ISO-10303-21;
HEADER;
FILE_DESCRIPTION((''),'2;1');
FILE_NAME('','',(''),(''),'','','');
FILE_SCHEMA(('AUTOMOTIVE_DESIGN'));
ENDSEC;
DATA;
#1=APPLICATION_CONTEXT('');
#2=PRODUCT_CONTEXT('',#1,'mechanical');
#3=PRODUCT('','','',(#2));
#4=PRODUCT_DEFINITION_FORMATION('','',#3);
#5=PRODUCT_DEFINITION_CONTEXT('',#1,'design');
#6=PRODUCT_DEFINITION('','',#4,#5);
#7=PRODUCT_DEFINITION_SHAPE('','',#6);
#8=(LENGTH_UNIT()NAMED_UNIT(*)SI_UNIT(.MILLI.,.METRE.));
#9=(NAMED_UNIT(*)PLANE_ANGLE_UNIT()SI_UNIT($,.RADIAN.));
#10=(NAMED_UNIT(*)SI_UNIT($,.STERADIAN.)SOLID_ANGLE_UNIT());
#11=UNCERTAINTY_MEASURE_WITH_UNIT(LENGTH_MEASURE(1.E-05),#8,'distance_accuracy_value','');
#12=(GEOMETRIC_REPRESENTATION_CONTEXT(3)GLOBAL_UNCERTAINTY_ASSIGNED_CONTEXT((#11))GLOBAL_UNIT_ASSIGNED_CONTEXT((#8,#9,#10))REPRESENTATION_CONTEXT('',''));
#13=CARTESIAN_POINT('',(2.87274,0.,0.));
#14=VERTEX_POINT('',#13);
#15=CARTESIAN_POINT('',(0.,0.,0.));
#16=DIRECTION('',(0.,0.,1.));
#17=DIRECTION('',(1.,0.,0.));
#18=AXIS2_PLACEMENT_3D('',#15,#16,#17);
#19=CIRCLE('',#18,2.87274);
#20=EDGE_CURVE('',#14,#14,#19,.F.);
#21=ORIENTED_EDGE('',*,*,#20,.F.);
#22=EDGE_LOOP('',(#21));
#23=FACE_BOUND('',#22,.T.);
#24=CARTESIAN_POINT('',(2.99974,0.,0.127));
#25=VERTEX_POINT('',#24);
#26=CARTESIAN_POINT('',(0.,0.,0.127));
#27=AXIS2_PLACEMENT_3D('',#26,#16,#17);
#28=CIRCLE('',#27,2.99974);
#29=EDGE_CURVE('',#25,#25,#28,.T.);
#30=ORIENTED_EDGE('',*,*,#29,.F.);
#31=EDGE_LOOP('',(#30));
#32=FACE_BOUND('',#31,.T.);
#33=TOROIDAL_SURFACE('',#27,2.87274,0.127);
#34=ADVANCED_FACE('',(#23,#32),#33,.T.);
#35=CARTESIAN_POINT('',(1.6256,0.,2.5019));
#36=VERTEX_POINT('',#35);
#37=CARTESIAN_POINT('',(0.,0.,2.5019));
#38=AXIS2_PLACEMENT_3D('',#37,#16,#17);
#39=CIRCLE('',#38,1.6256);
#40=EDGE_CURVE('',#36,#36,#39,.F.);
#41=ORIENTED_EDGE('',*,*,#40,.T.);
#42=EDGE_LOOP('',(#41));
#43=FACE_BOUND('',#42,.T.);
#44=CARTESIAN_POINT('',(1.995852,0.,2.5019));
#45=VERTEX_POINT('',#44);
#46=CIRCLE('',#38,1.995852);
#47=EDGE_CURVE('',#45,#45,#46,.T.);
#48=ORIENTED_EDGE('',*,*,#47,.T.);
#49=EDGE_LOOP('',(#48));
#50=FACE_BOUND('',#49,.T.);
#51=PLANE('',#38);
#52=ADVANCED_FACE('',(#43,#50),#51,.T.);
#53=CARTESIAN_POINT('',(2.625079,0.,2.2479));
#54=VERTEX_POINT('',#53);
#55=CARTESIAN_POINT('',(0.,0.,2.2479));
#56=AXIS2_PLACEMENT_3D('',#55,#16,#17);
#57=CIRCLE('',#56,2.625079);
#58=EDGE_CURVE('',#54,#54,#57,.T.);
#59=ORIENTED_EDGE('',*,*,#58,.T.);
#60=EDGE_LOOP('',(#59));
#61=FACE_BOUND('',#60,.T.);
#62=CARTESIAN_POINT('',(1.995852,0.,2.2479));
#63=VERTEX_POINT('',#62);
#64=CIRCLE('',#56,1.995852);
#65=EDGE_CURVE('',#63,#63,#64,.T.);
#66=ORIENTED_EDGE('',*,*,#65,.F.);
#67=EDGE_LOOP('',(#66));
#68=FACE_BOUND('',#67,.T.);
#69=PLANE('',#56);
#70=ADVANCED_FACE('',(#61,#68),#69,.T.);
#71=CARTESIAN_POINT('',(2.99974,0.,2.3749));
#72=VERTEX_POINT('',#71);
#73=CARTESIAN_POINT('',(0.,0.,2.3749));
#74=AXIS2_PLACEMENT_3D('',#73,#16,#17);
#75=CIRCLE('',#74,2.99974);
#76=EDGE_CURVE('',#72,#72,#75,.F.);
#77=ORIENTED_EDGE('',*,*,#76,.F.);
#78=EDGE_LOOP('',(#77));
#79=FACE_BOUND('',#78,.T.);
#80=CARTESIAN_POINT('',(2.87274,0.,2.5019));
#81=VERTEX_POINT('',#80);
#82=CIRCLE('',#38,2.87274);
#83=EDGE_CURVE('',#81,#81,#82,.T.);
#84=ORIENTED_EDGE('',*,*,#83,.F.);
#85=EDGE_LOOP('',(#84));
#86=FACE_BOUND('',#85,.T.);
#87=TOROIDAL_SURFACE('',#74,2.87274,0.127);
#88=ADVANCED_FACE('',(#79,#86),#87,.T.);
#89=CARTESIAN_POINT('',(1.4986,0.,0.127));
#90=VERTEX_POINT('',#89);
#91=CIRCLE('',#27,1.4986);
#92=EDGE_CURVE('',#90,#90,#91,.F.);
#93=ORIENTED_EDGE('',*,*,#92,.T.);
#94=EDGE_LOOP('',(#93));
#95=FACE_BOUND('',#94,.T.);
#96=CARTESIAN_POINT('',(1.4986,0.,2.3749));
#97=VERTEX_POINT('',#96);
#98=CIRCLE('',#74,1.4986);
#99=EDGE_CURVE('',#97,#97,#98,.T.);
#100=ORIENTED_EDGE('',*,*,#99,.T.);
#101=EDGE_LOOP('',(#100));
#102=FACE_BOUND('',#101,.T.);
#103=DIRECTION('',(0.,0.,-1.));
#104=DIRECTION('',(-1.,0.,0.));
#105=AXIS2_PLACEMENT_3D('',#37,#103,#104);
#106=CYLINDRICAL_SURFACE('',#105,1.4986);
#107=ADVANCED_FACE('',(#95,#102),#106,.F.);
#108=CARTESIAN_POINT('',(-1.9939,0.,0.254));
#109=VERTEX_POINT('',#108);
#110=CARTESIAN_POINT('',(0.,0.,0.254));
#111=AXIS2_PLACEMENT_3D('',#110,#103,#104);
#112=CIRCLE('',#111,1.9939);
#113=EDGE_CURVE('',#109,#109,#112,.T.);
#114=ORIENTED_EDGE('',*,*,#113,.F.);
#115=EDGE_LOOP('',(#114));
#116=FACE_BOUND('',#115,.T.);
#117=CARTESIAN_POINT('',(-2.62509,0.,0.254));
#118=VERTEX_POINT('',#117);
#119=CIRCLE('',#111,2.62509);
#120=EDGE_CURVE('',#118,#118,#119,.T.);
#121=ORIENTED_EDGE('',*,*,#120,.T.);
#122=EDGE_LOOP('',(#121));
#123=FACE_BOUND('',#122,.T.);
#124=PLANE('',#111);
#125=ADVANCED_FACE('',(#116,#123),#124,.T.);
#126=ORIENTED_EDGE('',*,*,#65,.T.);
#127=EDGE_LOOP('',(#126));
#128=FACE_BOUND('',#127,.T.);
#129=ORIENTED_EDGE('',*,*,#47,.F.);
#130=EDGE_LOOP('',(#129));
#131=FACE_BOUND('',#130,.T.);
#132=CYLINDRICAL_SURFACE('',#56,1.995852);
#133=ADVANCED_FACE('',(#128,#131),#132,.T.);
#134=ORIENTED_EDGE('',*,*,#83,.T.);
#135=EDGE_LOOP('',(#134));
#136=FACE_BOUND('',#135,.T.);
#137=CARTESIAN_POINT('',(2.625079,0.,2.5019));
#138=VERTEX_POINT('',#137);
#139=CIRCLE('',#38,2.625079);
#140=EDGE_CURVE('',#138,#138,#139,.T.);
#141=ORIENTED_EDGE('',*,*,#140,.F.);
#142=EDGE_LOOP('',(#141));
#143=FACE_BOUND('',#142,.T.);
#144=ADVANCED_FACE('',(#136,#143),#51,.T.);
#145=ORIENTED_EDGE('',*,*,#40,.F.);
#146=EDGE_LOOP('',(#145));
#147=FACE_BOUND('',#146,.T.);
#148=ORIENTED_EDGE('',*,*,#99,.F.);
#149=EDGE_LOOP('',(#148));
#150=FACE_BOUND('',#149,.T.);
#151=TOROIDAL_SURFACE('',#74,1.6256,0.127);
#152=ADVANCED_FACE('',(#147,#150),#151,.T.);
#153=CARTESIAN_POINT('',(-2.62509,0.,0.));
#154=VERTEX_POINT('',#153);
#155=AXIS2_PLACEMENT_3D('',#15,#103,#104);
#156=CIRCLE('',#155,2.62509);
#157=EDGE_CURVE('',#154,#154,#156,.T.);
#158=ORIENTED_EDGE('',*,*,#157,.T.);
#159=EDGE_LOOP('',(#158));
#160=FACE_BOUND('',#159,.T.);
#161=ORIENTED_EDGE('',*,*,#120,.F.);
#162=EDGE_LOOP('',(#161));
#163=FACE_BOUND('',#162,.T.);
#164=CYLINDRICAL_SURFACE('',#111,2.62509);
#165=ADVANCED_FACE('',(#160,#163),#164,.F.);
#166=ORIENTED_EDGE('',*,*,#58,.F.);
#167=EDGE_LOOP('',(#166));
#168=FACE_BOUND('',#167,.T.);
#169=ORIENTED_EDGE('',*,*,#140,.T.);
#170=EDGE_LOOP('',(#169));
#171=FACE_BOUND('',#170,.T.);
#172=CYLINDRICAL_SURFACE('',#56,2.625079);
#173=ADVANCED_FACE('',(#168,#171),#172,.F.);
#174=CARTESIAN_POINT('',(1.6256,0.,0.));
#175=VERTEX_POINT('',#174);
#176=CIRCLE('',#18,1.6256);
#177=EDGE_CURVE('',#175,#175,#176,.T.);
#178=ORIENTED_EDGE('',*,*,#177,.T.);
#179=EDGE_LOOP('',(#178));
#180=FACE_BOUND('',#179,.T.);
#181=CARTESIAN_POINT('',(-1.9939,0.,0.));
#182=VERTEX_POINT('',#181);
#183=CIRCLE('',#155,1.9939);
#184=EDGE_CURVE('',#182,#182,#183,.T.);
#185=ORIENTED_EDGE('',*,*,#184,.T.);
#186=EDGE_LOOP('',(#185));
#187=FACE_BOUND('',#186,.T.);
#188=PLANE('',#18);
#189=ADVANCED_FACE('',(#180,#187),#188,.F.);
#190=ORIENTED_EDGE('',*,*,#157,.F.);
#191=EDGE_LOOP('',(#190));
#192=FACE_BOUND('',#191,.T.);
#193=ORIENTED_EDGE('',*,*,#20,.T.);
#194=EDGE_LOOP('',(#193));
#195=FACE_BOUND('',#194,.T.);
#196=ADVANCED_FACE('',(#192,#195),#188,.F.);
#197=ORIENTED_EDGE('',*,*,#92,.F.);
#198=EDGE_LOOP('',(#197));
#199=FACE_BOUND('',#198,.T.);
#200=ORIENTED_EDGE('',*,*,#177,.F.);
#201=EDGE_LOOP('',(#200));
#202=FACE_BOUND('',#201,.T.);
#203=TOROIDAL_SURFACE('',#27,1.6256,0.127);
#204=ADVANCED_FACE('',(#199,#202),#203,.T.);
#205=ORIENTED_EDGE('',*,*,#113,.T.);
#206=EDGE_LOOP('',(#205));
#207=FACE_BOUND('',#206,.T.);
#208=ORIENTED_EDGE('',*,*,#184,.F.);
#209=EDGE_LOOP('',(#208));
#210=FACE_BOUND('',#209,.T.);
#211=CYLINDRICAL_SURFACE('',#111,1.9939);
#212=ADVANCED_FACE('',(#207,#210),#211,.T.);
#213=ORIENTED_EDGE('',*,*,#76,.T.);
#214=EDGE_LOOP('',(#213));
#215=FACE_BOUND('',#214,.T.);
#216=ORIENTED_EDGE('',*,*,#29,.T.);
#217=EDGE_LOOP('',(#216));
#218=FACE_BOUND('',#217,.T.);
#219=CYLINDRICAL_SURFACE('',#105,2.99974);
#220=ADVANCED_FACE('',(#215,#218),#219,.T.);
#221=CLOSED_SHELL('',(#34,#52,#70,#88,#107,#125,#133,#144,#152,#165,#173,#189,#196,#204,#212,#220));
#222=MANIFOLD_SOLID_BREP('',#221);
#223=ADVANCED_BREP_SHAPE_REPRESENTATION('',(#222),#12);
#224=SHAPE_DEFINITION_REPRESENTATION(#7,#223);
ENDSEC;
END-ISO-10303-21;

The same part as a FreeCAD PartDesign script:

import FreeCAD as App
import Part
import Sketcher
Q = App.Units.Quantity


def edges_at(feature, points):
    """Names of the edges that pass closest to the given points."""
    edges = feature.Shape.Edges
    near = lambda p: min(range(len(edges)), key=lambda i: edges[i].distToShape(Part.Vertex(*p))[0])
    return sorted({f"Edge{near(p) + 1}" for p in points})

doc = App.newDocument("Part")
body = doc.addObject("PartDesign::Body", "Body")

sketch1 = doc.addObject("Sketcher::SketchObject", "Sketch")
body.addObject(sketch1)
sketch1.AttachmentSupport = (doc.XY_Plane, [""])
sketch1.MapMode = "FlatFace"
sketch1.addGeometry([
    Part.Circle(App.Vector(0, 0, 0), App.Vector(0, 0, 1), 2.99974),
    Part.Circle(App.Vector(0, 0, 0), App.Vector(0, 0, 1), 1.4986),
], False)
sketch1.addConstraint([
    Sketcher.Constraint("Coincident", 0, 3, -1, 1),
    Sketcher.Constraint("Coincident", 1, 3, -1, 1),
    Sketcher.Constraint("Diameter", 1, Q("0.118 in")),
    Sketcher.Constraint("Diameter", 0, Q("0.2362 in")),
])
pad1 = doc.addObject("PartDesign::Pad", "Pad")
body.addObject(pad1)
pad1.Profile = sketch1
pad1.Length = Q("0.0985 in")
doc.recompute()

fillet = doc.addObject("PartDesign::Fillet", "Fillet")
body.addObject(fillet)
fillet.Base = (pad1, edges_at(pad1, [
    (-3, 0, 0),
    (-3, 0, 2.502),
    (-1.499, 0, 0),
    (-1.499, 0, 2.502),
]))
fillet.Radius = Q("0.005 in")

sketch2 = doc.addObject("Sketcher::SketchObject", "Sketch001")
body.addObject(sketch2)
sketch2.AttachmentSupport = (doc.XY_Plane, [""])
sketch2.MapMode = "FlatFace"
sketch2.AttachmentOffset = App.Placement(App.Vector(0, 0, 0.0985 * 25.4), App.Rotation())
sketch2.addGeometry([
    Part.Circle(App.Vector(0, 0, 0), App.Vector(0, 0, 1), 2.625079),
    Part.Circle(App.Vector(0, 0, 0), App.Vector(0, 0, 1), 1.995852),
], False)
sketch2.addConstraint([
    Sketcher.Constraint("Coincident", 0, 3, -1, 1),
    Sketcher.Constraint("Coincident", 1, 3, -1, 1),
    Sketcher.Constraint("Diameter", 0, 5.250157),
    Sketcher.Constraint("Diameter", 1, 3.991704),
])
pocket1 = doc.addObject("PartDesign::Pocket", "Pocket")
body.addObject(pocket1)
pocket1.Profile = sketch2
pocket1.Length = Q("0.01 in")

sketch3 = doc.addObject("Sketcher::SketchObject", "Sketch002")
body.addObject(sketch3)
sketch3.AttachmentSupport = (doc.XY_Plane, [""])
sketch3.MapMode = "FlatFace"
sketch3.addGeometry([
    Part.Circle(App.Vector(0, 0, 0), App.Vector(0, 0, 1), 2.62509),
    Part.Circle(App.Vector(0, 0, 0), App.Vector(0, 0, 1), 1.9939),
], False)
sketch3.addConstraint([
    Sketcher.Constraint("Coincident", 0, 3, -1, 1),
    Sketcher.Constraint("Coincident", 1, 3, -1, 1),
    Sketcher.Constraint("Diameter", 1, Q("0.157 in")),
    Sketcher.Constraint("Diameter", 0, Q("0.2067 in")),
])
pocket2 = doc.addObject("PartDesign::Pocket", "Pocket001")
body.addObject(pocket2)
pocket2.Profile = sketch3
pocket2.Length = Q("0.01 in")
pocket2.Reversed = True

doc.recompute()
